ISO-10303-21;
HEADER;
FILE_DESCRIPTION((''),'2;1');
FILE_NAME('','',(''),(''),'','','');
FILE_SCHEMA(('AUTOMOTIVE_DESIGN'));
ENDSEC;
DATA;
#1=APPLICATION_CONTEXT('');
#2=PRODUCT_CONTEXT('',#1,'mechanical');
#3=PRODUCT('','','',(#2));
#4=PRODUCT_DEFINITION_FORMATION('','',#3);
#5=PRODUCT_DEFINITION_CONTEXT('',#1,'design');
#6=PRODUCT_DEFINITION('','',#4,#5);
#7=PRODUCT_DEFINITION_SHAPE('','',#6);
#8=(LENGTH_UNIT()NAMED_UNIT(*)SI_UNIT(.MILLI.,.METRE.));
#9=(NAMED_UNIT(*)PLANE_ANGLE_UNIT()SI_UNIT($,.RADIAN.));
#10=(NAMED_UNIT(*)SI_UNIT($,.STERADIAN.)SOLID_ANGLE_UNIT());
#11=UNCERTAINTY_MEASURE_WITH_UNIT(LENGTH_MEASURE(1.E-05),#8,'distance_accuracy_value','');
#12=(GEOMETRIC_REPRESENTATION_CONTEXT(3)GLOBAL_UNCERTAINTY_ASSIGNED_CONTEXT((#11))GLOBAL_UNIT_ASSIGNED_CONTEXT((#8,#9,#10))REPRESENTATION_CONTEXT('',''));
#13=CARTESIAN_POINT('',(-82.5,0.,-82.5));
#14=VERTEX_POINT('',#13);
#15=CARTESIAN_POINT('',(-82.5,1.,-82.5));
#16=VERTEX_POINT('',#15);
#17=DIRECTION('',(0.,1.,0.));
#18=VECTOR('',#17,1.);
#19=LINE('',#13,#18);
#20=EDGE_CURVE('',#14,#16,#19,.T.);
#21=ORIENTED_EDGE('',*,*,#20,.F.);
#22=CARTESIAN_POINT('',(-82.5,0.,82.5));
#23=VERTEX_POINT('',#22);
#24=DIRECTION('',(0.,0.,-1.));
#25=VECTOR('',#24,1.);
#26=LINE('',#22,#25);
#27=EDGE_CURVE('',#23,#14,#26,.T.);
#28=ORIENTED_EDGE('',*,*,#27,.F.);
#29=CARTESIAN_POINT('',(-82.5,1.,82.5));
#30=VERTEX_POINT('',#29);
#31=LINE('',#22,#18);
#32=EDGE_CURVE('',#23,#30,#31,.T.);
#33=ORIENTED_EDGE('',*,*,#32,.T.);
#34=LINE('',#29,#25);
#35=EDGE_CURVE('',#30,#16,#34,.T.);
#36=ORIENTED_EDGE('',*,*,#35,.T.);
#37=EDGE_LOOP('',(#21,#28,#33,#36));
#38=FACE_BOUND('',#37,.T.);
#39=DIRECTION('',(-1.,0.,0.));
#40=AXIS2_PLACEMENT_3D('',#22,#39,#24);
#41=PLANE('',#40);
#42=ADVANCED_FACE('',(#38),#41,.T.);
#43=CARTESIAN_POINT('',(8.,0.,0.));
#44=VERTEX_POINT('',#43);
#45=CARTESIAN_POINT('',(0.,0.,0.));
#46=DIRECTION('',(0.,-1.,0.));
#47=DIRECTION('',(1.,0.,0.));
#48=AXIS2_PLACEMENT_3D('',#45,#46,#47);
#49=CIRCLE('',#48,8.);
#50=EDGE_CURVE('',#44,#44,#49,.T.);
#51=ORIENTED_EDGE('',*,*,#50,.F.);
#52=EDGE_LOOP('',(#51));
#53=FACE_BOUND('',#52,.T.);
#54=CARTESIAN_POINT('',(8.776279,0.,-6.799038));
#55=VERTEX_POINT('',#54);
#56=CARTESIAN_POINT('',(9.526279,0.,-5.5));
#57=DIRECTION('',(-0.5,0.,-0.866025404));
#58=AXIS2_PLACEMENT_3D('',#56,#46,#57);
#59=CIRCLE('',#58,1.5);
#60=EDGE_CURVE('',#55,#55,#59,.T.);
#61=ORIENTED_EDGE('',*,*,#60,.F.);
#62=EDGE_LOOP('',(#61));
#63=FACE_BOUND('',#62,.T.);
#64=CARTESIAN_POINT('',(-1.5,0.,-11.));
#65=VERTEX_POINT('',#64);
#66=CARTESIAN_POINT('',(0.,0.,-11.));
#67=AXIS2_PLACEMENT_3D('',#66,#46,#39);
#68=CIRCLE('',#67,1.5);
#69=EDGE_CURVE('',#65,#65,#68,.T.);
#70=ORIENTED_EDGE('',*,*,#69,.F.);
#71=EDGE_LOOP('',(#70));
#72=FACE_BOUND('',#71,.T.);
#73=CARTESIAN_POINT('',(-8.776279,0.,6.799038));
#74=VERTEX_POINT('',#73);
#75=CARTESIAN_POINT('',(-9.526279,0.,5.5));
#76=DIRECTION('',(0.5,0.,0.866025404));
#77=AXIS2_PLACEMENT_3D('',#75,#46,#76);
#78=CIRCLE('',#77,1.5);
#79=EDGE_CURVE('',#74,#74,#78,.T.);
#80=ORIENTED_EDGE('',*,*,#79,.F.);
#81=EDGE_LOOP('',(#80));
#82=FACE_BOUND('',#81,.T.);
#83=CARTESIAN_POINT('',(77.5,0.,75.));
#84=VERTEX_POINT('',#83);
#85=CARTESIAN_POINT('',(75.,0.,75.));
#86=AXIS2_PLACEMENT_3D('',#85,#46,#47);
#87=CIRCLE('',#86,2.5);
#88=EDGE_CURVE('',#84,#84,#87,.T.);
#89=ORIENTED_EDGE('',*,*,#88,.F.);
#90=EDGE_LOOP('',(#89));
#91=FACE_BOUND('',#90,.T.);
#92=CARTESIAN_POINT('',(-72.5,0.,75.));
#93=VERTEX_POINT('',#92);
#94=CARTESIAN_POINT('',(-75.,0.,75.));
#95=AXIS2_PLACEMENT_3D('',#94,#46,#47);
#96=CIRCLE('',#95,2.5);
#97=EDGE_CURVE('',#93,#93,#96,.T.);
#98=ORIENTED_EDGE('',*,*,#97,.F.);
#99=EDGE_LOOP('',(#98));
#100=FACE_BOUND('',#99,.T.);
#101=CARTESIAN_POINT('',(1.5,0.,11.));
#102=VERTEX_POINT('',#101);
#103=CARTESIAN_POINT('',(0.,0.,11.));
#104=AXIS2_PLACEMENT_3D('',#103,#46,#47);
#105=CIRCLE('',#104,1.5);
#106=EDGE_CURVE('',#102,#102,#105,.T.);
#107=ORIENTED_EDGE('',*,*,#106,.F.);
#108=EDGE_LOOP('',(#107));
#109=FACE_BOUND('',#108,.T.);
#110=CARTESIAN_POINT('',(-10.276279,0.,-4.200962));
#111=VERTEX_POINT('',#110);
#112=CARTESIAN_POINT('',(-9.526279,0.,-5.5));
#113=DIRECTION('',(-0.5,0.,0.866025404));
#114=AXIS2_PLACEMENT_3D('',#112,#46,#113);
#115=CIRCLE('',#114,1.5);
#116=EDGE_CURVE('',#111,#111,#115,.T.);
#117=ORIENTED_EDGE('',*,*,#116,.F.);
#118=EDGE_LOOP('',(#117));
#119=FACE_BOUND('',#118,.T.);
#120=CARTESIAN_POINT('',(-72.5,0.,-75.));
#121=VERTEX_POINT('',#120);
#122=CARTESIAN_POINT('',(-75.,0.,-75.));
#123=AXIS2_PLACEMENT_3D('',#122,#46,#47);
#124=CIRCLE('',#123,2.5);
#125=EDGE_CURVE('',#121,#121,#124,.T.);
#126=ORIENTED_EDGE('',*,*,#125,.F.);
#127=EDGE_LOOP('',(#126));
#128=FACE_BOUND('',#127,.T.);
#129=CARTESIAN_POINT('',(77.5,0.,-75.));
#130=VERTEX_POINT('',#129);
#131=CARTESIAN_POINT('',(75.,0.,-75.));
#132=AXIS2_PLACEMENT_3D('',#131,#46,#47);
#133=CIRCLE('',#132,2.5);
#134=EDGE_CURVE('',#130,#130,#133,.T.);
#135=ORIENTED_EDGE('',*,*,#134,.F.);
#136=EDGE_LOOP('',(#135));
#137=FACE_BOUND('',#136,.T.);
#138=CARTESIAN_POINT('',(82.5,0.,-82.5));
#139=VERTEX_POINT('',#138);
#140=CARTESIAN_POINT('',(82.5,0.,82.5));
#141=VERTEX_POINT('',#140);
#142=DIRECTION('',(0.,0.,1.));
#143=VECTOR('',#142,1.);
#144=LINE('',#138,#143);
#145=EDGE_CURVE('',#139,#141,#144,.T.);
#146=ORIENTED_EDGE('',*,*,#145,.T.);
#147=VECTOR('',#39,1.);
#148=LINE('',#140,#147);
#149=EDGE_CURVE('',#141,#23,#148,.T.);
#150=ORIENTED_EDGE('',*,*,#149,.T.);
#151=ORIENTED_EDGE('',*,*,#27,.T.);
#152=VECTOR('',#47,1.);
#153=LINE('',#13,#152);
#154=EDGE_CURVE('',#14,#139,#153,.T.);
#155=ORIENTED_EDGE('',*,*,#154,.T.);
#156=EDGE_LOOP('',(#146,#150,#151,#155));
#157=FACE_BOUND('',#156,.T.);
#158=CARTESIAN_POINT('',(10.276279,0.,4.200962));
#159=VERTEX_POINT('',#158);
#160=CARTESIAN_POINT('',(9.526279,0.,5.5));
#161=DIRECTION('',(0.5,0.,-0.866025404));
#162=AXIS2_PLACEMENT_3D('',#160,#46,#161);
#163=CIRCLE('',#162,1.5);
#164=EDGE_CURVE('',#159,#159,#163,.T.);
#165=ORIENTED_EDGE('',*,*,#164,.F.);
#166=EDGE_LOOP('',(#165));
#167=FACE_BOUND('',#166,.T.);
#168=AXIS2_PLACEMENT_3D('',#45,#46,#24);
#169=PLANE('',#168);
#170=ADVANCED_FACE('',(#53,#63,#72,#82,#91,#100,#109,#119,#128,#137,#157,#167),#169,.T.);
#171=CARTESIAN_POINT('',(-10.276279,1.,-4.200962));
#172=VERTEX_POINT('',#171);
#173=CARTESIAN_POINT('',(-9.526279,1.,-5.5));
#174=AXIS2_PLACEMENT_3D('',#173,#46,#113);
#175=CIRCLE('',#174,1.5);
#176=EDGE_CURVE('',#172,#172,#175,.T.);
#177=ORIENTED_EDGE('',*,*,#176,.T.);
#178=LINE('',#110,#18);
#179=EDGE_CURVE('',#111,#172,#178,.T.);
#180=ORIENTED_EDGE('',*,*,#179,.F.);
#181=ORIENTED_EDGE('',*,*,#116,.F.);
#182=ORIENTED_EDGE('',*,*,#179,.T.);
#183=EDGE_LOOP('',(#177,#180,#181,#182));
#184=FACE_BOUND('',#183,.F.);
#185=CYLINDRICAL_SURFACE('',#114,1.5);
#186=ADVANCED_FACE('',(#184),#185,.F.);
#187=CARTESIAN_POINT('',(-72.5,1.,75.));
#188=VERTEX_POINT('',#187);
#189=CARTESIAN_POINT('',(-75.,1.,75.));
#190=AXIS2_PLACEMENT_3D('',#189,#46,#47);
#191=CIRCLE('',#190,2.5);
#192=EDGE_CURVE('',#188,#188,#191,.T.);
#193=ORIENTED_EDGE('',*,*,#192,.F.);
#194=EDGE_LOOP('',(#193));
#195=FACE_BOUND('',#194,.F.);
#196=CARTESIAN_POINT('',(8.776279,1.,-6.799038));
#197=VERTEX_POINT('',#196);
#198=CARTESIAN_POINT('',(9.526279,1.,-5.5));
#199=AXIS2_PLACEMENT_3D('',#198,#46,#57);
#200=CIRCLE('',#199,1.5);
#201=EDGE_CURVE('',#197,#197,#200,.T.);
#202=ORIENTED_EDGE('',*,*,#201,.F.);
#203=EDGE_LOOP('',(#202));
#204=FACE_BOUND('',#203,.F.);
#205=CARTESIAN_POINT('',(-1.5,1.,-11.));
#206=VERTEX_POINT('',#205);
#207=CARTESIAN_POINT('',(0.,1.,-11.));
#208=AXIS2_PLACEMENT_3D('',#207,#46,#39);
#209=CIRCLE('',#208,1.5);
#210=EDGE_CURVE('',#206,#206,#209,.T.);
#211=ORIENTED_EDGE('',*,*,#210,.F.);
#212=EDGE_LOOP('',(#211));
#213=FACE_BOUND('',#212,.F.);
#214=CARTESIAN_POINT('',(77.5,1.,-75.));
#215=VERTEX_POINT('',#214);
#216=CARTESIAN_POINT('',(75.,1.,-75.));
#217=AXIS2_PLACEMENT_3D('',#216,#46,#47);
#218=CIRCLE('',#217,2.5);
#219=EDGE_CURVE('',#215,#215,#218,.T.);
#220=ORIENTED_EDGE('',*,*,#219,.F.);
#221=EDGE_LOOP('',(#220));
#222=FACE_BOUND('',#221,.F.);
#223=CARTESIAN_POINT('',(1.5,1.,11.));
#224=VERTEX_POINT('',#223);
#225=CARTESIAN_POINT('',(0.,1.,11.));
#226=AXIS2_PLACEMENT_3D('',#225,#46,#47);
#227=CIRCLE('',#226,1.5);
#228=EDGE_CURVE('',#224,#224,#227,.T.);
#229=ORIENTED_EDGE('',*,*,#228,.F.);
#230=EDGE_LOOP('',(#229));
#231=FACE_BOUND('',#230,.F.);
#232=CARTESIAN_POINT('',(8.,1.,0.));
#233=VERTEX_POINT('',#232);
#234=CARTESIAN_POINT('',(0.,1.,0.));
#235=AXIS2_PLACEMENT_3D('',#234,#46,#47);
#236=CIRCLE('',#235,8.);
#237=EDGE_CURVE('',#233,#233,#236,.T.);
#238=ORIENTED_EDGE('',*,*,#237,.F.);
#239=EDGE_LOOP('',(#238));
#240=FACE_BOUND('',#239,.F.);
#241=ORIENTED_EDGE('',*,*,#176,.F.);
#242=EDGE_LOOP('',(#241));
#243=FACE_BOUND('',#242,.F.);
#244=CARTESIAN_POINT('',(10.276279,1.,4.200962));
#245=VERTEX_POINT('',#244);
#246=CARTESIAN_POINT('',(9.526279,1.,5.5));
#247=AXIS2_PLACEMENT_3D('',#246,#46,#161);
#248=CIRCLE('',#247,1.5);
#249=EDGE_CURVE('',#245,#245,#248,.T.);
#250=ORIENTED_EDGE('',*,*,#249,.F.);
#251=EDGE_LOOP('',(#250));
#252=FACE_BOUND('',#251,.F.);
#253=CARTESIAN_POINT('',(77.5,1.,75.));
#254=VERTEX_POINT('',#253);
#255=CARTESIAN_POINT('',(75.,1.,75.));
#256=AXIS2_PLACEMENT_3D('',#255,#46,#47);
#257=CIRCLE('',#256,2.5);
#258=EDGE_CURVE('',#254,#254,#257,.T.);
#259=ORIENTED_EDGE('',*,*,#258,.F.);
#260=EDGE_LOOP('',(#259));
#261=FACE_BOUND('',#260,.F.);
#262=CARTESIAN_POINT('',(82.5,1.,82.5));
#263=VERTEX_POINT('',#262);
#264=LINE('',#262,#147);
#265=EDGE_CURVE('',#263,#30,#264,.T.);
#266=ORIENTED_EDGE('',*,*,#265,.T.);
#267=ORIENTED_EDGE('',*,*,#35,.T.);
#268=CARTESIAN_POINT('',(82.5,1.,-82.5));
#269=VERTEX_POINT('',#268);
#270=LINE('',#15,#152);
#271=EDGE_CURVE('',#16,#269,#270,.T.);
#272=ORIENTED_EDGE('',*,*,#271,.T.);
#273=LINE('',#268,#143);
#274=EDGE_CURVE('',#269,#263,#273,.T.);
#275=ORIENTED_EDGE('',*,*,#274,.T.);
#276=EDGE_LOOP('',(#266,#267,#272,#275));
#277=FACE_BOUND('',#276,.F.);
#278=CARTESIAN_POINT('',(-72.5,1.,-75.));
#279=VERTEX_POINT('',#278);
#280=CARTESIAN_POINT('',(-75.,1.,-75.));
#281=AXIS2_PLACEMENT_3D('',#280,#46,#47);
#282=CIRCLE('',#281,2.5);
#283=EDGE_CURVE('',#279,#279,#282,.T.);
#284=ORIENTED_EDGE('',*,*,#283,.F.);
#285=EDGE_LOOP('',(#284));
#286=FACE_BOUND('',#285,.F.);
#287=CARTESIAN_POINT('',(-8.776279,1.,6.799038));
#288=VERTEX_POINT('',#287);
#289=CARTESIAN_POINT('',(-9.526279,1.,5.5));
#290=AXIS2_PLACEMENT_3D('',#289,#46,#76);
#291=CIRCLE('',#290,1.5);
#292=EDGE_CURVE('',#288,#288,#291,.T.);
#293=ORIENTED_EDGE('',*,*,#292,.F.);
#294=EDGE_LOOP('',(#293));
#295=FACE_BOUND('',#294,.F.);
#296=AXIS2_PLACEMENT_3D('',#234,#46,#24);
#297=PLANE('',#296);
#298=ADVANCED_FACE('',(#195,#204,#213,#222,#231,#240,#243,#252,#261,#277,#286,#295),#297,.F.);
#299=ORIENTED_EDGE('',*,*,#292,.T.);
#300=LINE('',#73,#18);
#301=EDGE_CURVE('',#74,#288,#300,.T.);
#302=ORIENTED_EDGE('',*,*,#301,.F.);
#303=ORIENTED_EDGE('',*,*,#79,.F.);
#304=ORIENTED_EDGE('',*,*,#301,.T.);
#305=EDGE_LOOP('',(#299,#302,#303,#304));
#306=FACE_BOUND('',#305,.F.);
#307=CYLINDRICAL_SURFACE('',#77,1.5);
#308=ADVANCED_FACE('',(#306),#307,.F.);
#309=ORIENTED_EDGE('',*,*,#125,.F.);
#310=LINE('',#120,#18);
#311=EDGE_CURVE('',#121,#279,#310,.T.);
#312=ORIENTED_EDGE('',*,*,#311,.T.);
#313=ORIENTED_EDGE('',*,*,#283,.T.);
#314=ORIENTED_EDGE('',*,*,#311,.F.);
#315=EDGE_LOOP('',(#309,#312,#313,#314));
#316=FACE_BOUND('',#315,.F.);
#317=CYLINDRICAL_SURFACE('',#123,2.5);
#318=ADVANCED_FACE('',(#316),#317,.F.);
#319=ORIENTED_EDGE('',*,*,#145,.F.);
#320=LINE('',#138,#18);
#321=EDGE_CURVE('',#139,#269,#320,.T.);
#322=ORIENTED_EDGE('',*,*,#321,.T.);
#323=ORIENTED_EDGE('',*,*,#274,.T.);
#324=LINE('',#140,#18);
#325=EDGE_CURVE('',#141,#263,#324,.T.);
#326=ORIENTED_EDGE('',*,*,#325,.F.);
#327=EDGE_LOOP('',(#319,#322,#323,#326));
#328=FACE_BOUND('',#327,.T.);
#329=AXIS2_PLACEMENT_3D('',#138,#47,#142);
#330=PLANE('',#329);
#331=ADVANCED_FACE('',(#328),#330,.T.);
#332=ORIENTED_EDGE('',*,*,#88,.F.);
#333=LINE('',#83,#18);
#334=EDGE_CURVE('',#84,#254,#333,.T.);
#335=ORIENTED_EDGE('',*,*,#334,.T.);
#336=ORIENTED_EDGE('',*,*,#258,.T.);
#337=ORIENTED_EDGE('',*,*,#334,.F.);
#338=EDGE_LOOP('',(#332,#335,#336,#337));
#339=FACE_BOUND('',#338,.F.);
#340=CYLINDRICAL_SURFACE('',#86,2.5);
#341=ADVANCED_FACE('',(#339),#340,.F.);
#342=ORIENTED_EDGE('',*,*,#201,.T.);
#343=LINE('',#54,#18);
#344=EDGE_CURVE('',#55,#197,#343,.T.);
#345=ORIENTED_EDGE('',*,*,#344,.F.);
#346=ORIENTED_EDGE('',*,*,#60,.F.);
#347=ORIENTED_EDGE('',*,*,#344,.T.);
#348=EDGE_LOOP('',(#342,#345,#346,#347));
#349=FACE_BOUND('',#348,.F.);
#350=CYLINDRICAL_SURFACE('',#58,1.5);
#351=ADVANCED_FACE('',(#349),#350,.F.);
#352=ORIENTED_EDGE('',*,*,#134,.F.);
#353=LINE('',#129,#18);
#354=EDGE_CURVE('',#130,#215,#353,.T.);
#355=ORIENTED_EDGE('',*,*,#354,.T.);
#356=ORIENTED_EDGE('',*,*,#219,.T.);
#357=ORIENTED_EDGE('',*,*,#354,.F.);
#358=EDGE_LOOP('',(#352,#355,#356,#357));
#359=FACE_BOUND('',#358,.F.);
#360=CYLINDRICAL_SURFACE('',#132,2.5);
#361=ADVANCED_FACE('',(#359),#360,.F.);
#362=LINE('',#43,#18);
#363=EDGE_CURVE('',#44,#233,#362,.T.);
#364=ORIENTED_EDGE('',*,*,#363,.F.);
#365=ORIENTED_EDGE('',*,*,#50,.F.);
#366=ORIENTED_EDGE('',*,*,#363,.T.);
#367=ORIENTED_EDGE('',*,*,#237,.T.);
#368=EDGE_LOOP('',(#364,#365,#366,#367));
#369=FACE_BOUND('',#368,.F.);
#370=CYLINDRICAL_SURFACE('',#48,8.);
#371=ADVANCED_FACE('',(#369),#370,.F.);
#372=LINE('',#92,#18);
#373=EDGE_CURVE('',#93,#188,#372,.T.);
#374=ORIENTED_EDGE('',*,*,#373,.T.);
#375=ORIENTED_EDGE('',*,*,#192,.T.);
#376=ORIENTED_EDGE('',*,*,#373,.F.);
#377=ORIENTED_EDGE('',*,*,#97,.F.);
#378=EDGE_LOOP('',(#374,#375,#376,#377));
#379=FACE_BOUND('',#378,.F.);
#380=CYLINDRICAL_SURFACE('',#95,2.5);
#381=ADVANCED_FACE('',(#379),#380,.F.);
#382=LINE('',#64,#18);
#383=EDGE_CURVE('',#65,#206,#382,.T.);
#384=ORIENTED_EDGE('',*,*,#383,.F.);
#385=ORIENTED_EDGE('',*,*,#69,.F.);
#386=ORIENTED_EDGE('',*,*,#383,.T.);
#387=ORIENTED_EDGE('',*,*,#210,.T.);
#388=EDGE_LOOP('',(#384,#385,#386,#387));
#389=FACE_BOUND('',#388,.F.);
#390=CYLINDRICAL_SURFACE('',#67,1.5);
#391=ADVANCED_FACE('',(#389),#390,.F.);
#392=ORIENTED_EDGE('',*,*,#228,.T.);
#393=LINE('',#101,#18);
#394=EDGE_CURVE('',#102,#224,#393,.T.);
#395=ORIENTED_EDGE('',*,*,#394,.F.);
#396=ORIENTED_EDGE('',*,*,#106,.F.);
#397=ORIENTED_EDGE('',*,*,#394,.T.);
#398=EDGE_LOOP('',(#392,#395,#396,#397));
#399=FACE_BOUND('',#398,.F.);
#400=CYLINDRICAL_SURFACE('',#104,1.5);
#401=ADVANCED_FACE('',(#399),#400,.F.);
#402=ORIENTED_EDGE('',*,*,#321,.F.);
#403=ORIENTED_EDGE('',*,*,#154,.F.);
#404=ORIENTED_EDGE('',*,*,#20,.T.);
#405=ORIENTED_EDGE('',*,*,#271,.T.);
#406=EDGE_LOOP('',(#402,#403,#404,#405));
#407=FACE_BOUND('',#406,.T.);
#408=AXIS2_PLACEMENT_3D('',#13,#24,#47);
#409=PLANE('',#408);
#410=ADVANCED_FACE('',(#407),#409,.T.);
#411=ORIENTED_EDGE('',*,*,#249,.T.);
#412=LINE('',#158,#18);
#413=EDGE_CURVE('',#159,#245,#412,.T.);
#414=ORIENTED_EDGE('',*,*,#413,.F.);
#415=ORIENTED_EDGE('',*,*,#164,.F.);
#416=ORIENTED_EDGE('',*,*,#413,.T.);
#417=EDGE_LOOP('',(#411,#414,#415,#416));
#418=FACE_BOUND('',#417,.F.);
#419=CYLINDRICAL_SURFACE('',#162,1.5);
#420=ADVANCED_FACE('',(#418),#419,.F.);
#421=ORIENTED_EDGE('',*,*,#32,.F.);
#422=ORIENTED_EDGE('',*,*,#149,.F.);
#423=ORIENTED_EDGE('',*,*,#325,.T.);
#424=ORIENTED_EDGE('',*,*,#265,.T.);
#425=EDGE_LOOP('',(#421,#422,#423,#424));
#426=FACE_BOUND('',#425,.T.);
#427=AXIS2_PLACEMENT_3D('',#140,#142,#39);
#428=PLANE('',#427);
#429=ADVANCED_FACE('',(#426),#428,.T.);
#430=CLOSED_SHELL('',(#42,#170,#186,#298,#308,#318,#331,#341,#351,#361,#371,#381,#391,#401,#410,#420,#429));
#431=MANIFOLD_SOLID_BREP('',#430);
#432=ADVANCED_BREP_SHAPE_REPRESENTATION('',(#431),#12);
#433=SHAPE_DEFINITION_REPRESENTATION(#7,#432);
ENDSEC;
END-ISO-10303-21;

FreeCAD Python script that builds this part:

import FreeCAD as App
import Part
import Sketcher

V = App.Vector


def add_polygon(sketch, points):
    """Adds a closed chain of lines whose ends are joined by coincident constraints."""
    first, n = sketch.GeometryCount, len(points)
    for a, b in zip(points, points[1:] + points[:1]):
        sketch.addGeometry(Part.LineSegment(App.Vector(*a, 0), App.Vector(*b, 0)), False)
    for i in range(n):
        sketch.addConstraint(Sketcher.Constraint("Coincident", first + i, 2, first + (i + 1) % n, 1))

doc = App.newDocument("Part")
body = doc.addObject("PartDesign::Body", "Body")

# Sketch on XZ plane
sketch1 = body.newObject("Sketcher::SketchObject", "Sketch")
sketch1.AttachmentSupport = (doc.getObject("XZ_Plane"), [""])
sketch1.MapMode = "FlatFace"
add_polygon(sketch1, [(-82.5, 82.5), (-82.5, -82.5), (82.5, -82.5), (82.5, 82.5)])  # lines 0-3
sketch1.addGeometry(Part.Circle(V(0, 0, 0), V(0, 0, 1), 2), False)  # 4
sketch1.addConstraint(Sketcher.Constraint("Vertical", 0))
sketch1.addConstraint(Sketcher.Constraint("Horizontal", 1))
sketch1.addConstraint(Sketcher.Constraint("Vertical", 2))
sketch1.addConstraint(Sketcher.Constraint("Horizontal", 3))
sketch1.addConstraint(Sketcher.Constraint("Coincident", 4, 3, -1, 1))
sketch1.addConstraint(Sketcher.Constraint("Symmetric", 0, 2, 2, 2, -1, 1))
sketch1.addConstraint(Sketcher.Constraint("Equal", 3, 0))
sketch1.addConstraint(Sketcher.Constraint("Diameter", 4, 4.0))
sketch1.addConstraint(Sketcher.Constraint("DistanceX", 1, 1, 1, 2, 165.0))
pad1 = body.newObject("PartDesign::Pad", "Pad")
pad1.Profile = sketch1
pad1.Length = 1
pad1.Reversed = True

# Sketch on XZ plane
sketch2 = body.newObject("Sketcher::SketchObject", "Sketch001")
sketch2.AttachmentSupport = (doc.getObject("XZ_Plane"), [""])
sketch2.MapMode = "FlatFace"
sketch2.addGeometry(Part.Circle(V(0, 0, 0), V(0, 0, 1), 8), False)
sketch2.addConstraint(Sketcher.Constraint("Coincident", 0, 3, -1, 1))
sketch2.addConstraint(Sketcher.Constraint("Diameter", 0, 16.0))
pocket1 = body.newObject("PartDesign::Pocket", "Pocket")
pocket1.Profile = sketch2
pocket1.Type = "ThroughAll"

# Sketch on XZ plane
sketch3 = body.newObject("Sketcher::SketchObject", "Sketch002")
sketch3.AttachmentSupport = (doc.getObject("XZ_Plane"), [""])
sketch3.MapMode = "FlatFace"
sketch3.addGeometry(Part.Circle(V(-75, 75, 0), V(0, 0, 1), 2.5), False)
sketch3.addGeometry(Part.Circle(V(75, 75, 0), V(0, 0, 1), 2.5), False)
sketch3.addGeometry(Part.Circle(V(75, -75, 0), V(0, 0, 1), 2.5), False)
sketch3.addGeometry(Part.Circle(V(-75, -75, 0), V(0, 0, 1), 2.5), False)
sketch3.addConstraint(Sketcher.Constraint("Equal", 0, 1))
sketch3.addConstraint(Sketcher.Constraint("Equal", 1, 2))
sketch3.addConstraint(Sketcher.Constraint("Equal", 2, 3))
sketch3.addConstraint(Sketcher.Constraint("Symmetric", 0, 3, 2, 3, -1, 1))
sketch3.addConstraint(Sketcher.Constraint("Symmetric", 1, 3, 3, 3, -1, 1))
sketch3.addConstraint(Sketcher.Constraint("Symmetric", 0, 3, 1, 3, -2))
sketch3.addConstraint(Sketcher.Constraint("Diameter", 0, 5.0))
sketch3.addConstraint(Sketcher.Constraint("DistanceX", 0, 3, -1, 1, 75.0))
sketch3.addConstraint(Sketcher.Constraint("DistanceY", -1, 1, 0, 3, 75.0))
pocket2 = body.newObject("PartDesign::Pocket", "Pocket001")
pocket2.Profile = sketch3
pocket2.Type = "ThroughAll"

# Sketch on XZ plane
sketch4 = body.newObject("Sketcher::SketchObject", "Sketch003")
sketch4.AttachmentSupport = (doc.getObject("XZ_Plane"), [""])
sketch4.MapMode = "FlatFace"
sketch4.addGeometry(Part.Circle(V(0, 11, 0), V(0, 0, 1), 1.5), False)
sketch4.addConstraint(Sketcher.Constraint("PointOnObject", 0, 3, -2))
sketch4.addConstraint(Sketcher.Constraint("Diameter", 0, 3.0))
sketch4.addConstraint(Sketcher.Constraint("DistanceY", -1, 1, 0, 3, 11.0))
pocket3 = body.newObject("PartDesign::Pocket", "Pocket002")
pocket3.Profile = sketch4
pocket3.Type = "ThroughAll"
doc.recompute()

polarpattern = body.newObject("PartDesign::PolarPattern", "PolarPattern")
polarpattern.Originals = [pocket3]
polarpattern.Axis = (doc.getObject("Y_Axis"), [""])
polarpattern.Angle = 360
polarpattern.Occurrences = 6
body.Tip = polarpattern

doc.recompute()
